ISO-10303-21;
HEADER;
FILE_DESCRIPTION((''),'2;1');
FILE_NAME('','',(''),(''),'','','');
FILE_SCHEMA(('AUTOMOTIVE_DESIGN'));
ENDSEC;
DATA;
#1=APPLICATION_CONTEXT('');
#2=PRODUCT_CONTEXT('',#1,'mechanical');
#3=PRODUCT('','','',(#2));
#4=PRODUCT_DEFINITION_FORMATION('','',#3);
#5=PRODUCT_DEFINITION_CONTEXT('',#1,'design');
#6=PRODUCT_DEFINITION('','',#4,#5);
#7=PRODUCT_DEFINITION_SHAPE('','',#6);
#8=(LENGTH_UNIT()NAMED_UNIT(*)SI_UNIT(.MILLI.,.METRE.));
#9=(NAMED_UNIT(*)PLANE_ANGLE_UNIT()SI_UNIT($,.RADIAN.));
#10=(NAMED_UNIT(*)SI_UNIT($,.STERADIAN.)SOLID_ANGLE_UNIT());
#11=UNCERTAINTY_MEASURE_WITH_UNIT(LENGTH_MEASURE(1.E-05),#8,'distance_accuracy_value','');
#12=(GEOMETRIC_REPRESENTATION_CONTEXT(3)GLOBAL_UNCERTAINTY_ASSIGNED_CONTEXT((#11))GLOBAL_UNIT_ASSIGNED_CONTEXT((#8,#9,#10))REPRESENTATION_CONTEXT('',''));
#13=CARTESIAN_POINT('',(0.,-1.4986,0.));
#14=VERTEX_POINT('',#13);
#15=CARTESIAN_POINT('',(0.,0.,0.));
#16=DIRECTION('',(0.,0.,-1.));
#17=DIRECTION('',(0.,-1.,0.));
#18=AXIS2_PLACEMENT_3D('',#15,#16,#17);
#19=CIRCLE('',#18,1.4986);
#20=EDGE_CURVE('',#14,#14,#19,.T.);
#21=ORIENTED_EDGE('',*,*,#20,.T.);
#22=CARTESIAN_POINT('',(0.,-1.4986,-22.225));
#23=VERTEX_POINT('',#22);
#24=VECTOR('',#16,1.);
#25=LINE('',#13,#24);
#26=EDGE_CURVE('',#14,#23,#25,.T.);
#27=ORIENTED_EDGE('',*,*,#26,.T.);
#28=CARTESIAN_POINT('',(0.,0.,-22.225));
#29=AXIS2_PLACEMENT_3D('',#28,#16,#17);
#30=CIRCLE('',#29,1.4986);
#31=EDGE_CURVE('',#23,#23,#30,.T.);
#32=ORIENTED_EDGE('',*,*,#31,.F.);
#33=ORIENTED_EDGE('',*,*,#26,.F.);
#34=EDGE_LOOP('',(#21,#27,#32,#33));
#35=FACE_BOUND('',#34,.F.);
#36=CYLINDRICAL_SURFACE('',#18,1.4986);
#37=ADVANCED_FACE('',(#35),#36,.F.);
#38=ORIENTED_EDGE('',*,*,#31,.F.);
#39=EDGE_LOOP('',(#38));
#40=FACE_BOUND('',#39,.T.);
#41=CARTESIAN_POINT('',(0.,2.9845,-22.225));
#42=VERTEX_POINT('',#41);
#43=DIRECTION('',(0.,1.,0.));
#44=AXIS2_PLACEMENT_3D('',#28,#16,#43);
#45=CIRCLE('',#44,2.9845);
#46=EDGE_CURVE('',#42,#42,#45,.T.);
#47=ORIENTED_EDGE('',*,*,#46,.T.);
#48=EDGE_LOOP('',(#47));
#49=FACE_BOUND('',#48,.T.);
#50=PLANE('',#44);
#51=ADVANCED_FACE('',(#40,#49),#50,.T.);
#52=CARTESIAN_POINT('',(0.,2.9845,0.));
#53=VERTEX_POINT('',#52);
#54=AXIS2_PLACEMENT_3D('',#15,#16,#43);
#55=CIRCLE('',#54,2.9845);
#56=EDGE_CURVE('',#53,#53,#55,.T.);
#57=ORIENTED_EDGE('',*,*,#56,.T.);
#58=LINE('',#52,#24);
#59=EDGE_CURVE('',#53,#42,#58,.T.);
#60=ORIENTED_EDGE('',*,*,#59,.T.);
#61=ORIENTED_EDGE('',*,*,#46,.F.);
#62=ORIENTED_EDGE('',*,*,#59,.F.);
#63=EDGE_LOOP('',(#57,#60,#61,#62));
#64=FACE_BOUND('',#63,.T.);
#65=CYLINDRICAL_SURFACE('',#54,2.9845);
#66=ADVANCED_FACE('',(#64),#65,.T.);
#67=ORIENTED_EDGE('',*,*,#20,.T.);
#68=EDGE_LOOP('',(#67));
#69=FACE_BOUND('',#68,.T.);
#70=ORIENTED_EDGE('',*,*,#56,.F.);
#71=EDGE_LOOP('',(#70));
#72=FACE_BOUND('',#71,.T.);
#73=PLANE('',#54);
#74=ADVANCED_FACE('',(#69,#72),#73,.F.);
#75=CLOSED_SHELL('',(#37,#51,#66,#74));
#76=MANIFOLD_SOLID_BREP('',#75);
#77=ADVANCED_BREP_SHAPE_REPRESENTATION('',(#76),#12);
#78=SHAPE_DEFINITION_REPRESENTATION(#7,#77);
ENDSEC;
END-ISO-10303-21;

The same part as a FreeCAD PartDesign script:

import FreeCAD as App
import Part
import Sketcher
Q = App.Units.Quantity

doc = App.newDocument("Part")
body = doc.addObject("PartDesign::Body", "Body")

sketch1 = body.newObject("Sketcher::SketchObject", "Sketch")
sketch1.AttachmentSupport = (doc.getObject("YZ_Plane"), [""])
sketch1.MapMode = "FlatFace"
sketch1.addGeometry([
    Part.LineSegment(App.Vector(0, 0, 0), App.Vector(0, -22.2, 0)),
    Part.LineSegment(App.Vector(0, -22.2, 0), App.Vector(3, -22.2, 0)),
    Part.LineSegment(App.Vector(3, -22.2, 0), App.Vector(3, 0, 0)),
    Part.LineSegment(App.Vector(3, 0, 0), App.Vector(0, 0, 0)),
], False)
sketch1.addConstraint([
    Sketcher.Constraint("Coincident", 0, 2, 1, 1),
    Sketcher.Constraint("Coincident", 1, 2, 2, 1),
    Sketcher.Constraint("Coincident", 2, 2, 3, 1),
    Sketcher.Constraint("Coincident", 3, 2, 0, 1),
    Sketcher.Constraint("Vertical", 0),
    Sketcher.Constraint("Horizontal", 1),
    Sketcher.Constraint("Vertical", 2),
    Sketcher.Constraint("Horizontal", 3),
    Sketcher.Constraint("Coincident", 3, 2, -1, 1),
    Sketcher.Constraint("DistanceY", 0, 2, 0, 1, Q("0.875 in")),
    Sketcher.Constraint("DistanceX", 1, 1, 1, 2, Q("0.1175 in")),
])
revolution = body.newObject("PartDesign::Revolution", "Revolution")
revolution.Profile = sketch1
revolution.ReferenceAxis = (sketch1, ["V_Axis"])
revolution.Angle = 360

sketch2 = body.newObject("Sketcher::SketchObject", "Sketch001")
sketch2.AttachmentSupport = (doc.getObject("XY_Plane"), [""])
sketch2.MapMode = "FlatFace"
sketch2.addGeometry(Part.Circle(App.Vector(0, 0, 0), App.Vector(0, 0, 1), 1.5), False)
sketch2.addConstraint([
    Sketcher.Constraint("Coincident", 0, 3, -1, 1),
    Sketcher.Constraint("Diameter", 0, Q("0.118 in")),
])
doc.recompute()
hole = body.newObject("PartDesign::Hole", "Hole")
hole.Profile = sketch2
hole.ThreadType = "None"
hole.Diameter = Q("0.118 in")
hole.DepthType = "Dimension"
hole.Depth = Q("0.875 in")
hole.DrillPoint = "Flat"

doc.recompute()
